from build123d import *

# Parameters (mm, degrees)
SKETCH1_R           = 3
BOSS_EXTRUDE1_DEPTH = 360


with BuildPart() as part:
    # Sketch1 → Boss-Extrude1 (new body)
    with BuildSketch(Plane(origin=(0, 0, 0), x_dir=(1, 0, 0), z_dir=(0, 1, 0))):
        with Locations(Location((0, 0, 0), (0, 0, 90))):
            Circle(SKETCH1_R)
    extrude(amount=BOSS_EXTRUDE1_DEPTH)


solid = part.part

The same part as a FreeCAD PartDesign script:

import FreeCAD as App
import Part
import Sketcher

V = App.Vector
Q = App.Units.Quantity

doc = App.newDocument("Part")
body = doc.addObject("PartDesign::Body", "Body")

# Sketch on XZ plane
sketch1 = doc.addObject("Sketcher::SketchObject", "Sketch")
body.addObject(sketch1)
sketch1.AttachmentSupport = (doc.XZ_Plane, [""])
sketch1.MapMode = "FlatFace"
sketch1.addGeometry(Part.Circle(V(0, 0, 0), V(0, 0, 1), 3), False)
sketch1.addConstraint(Sketcher.Constraint("Coincident", 0, 3, -1, 1))
sketch1.addConstraint(Sketcher.Constraint("Diameter", 0, Q("6 mm")))
pad1 = doc.addObject("PartDesign::Pad", "Pad")
body.addObject(pad1)
pad1.Profile = sketch1
pad1.Length = 360
pad1.Reversed = True

doc.recompute()
